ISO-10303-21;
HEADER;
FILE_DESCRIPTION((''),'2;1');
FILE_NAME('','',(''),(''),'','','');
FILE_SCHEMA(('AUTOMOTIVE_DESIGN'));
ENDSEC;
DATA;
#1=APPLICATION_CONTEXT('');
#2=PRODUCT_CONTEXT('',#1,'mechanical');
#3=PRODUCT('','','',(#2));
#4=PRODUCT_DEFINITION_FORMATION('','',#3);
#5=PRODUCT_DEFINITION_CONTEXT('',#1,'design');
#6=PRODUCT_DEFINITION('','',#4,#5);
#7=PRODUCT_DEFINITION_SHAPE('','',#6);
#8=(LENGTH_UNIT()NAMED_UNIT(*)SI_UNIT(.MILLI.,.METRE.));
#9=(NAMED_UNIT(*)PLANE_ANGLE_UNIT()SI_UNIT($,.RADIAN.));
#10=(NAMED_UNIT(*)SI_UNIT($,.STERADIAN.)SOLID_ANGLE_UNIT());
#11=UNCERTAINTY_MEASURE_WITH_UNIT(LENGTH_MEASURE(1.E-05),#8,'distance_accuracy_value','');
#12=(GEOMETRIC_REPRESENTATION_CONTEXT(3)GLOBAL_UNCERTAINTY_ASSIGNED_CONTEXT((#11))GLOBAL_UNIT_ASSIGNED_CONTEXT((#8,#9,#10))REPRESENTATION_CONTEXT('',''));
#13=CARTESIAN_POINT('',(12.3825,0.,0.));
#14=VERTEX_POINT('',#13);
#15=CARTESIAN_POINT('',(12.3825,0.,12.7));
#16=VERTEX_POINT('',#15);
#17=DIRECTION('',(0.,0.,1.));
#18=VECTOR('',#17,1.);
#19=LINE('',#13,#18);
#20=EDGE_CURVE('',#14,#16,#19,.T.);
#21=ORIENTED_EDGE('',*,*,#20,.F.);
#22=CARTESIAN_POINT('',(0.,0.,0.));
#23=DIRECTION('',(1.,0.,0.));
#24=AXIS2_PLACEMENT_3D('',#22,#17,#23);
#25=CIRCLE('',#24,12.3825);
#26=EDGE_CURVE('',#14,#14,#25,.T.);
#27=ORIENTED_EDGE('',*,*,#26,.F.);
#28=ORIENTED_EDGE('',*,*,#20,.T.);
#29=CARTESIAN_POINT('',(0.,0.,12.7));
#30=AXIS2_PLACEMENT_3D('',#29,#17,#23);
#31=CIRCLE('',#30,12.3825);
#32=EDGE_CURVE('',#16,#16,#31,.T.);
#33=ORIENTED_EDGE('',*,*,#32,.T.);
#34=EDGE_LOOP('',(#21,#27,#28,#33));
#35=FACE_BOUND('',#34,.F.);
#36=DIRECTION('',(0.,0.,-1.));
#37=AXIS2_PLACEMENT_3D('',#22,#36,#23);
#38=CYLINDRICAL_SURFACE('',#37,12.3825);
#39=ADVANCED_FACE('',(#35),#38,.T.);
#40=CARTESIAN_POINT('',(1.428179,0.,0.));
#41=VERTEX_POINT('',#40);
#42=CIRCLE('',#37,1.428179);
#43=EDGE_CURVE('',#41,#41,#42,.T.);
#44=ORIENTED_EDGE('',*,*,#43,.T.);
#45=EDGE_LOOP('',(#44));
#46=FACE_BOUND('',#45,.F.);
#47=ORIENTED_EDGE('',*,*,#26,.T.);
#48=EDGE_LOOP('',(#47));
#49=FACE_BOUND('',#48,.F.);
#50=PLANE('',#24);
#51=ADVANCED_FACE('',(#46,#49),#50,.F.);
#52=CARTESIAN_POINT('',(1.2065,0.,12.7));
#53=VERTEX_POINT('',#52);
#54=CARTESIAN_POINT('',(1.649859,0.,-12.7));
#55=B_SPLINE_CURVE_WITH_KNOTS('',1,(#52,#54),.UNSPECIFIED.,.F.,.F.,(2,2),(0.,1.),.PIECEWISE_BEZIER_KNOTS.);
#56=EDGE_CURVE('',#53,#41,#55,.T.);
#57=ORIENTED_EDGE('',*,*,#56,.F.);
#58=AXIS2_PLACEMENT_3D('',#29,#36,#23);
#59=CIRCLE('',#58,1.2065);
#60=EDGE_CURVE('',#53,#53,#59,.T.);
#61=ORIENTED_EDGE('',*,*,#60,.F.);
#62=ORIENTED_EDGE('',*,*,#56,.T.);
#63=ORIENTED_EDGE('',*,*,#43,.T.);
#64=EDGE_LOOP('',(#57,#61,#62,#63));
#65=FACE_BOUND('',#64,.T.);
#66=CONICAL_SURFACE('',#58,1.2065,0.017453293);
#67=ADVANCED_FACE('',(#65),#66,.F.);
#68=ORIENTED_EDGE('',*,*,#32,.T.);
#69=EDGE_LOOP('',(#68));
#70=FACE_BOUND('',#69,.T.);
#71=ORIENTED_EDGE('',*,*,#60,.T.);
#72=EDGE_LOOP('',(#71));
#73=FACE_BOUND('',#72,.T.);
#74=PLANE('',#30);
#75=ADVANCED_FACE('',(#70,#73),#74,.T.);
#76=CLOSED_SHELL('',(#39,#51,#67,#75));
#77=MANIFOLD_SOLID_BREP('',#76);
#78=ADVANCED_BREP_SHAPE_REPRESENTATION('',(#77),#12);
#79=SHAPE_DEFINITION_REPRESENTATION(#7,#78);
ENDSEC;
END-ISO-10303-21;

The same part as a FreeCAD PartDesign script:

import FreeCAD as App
import Part
import Sketcher

V = App.Vector
Q = App.Units.Quantity

doc = App.newDocument("Part")
body = doc.addObject("PartDesign::Body", "Body")

sketch1 = doc.addObject("Sketcher::SketchObject", "Sketch")
body.addObject(sketch1)
sketch1.AttachmentSupport = (doc.XY_Plane, [""])
sketch1.MapMode = "FlatFace"
sketch1.addGeometry(Part.Circle(V(0, 0, 0), V(0, 0, 1), 12), False)
sketch1.addConstraint([
    Sketcher.Constraint("Coincident", 0, 3, -1, 1),
    Sketcher.Constraint("Diameter", 0, Q("0.975 in")),
])
pad1 = doc.addObject("PartDesign::Pad", "Pad")
body.addObject(pad1)
pad1.Profile = sketch1
pad1.Length = Q("0.5 in")

sketch2 = doc.addObject("Sketcher::SketchObject", "Sketch001")
body.addObject(sketch2)
sketch2.AttachmentSupport = (doc.XY_Plane, [""])
sketch2.MapMode = "FlatFace"
sketch2.AttachmentOffset = App.Placement(V(0, 0, 0.5 * 25.4), App.Rotation())
sketch2.addGeometry(Part.Circle(V(0, 0, 0), V(0, 0, 1), 1.2), False)
sketch2.addConstraint([
    Sketcher.Constraint("Coincident", 0, 3, -1, 1),
    Sketcher.Constraint("Diameter", 0, Q("0.095 in")),
])
pocket1 = doc.addObject("PartDesign::Pocket", "Pocket")
body.addObject(pocket1)
pocket1.Profile = sketch2
pocket1.Length = Q("1 in")
pocket1.TaperAngle = 1

doc.recompute()
